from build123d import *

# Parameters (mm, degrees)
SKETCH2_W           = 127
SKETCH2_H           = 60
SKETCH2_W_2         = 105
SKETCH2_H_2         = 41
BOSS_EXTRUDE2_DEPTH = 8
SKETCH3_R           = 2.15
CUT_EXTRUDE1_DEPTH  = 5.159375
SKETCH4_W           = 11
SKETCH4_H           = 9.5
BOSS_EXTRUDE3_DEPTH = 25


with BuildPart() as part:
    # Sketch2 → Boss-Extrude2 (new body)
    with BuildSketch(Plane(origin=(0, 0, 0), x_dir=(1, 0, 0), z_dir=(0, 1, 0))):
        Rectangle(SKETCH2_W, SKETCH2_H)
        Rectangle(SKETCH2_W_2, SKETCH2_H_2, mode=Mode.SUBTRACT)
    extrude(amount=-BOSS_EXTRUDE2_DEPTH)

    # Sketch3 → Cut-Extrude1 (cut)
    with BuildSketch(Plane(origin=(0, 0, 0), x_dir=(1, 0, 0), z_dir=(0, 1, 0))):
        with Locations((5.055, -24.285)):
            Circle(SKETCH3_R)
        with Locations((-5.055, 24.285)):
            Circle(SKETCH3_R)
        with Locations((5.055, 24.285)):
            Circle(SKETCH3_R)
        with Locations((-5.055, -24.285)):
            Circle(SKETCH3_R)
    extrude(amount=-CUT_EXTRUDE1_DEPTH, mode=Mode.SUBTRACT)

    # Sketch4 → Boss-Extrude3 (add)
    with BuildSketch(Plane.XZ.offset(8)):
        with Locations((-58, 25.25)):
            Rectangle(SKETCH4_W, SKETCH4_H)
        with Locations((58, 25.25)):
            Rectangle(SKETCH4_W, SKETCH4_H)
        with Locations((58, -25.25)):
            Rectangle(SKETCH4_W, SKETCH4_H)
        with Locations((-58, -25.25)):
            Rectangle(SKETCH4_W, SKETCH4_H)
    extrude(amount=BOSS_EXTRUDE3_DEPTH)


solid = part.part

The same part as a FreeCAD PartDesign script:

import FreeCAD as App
import Part
import Sketcher
from FreeCAD import Vector


def add_polygon(sketch, points):
    """Adds a closed chain of lines whose ends are joined by coincident constraints."""
    first, n = sketch.GeometryCount, len(points)
    for a, b in zip(points, points[1:] + points[:1]):
        sketch.addGeometry(Part.LineSegment(App.Vector(*a, 0), App.Vector(*b, 0)), False)
    for i in range(n):
        sketch.addConstraint(Sketcher.Constraint("Coincident", first + i, 2, first + (i + 1) % n, 1))

doc = App.newDocument("Part")
params = doc.addObject("Spreadsheet::Sheet", "Params")
for row, (alias, value) in enumerate([
    ("sketch1_width", "127 mm"),
    ("sketch1_width2", "105 mm"),
    ("sketch1_height", "60 mm"),
    ("sketch1_height2", "41 mm"),
    ("pad1_length", "8 mm"),
    ("sketch2_diameter", "4.3 mm"),
    ("pocket1_length", "5.159375 mm"),
    ("sketch3_width", "11 mm"),
    ("sketch3_height", "9.5 mm"),
    ("pad2_length", "25 mm"),
], start=1):
    params.set(f"A{row}", alias)
    params.set(f"B{row}", "=" + value)
    params.setAlias(f"B{row}", alias)

body = doc.addObject("PartDesign::Body", "Body")

# Sketch on XZ plane
sketch1 = body.newObject("Sketcher::SketchObject", "Sketch")
sketch1.AttachmentSupport = (doc.getObject("XZ_Plane"), [""])
sketch1.MapMode = "FlatFace"
add_polygon(sketch1, [(-64, -30), (-64, 30), (64, 30), (64, -30)])  # lines 0-3
add_polygon(sketch1, [(52, 20), (-52, 20), (-52, -20), (52, -20)])  # lines 4-7
sketch1.addConstraint(Sketcher.Constraint("Vertical", 0))
sketch1.addConstraint(Sketcher.Constraint("Horizontal", 1))
sketch1.addConstraint(Sketcher.Constraint("Vertical", 2))
sketch1.addConstraint(Sketcher.Constraint("Horizontal", 3))
sketch1.addConstraint(Sketcher.Constraint("Horizontal", 4))
sketch1.addConstraint(Sketcher.Constraint("Vertical", 5))
sketch1.addConstraint(Sketcher.Constraint("Horizontal", 6))
sketch1.addConstraint(Sketcher.Constraint("Vertical", 7))
sketch1.addConstraint(Sketcher.Constraint("Symmetric", 0, 2, 2, 2, -1, 1))
sketch1.addConstraint(Sketcher.Constraint("Symmetric", 4, 2, 6, 2, -1, 1))
sketch1.addConstraint(Sketcher.Constraint("DistanceX", 1, 1, 1, 2, 127.0))
sketch1.addConstraint(Sketcher.Constraint("DistanceX", 4, 2, 4, 1, 105.0))
sketch1.addConstraint(Sketcher.Constraint("DistanceY", 0, 1, 0, 2, 60.0))
sketch1.addConstraint(Sketcher.Constraint("DistanceY", 5, 2, 5, 1, 41.0))
sketch1.setExpression("Constraints[18]", "Params.sketch1_width")
sketch1.setExpression("Constraints[19]", "Params.sketch1_width2")
sketch1.setExpression("Constraints[20]", "Params.sketch1_height")
sketch1.setExpression("Constraints[21]", "Params.sketch1_height2")
pad1 = body.newObject("PartDesign::Pad", "Pad")
pad1.Profile = sketch1
pad1.setExpression("Length", "Params.pad1_length")

# Sketch on XZ plane
sketch2 = body.newObject("Sketcher::SketchObject", "Sketch001")
sketch2.AttachmentSupport = (doc.getObject("XZ_Plane"), [""])
sketch2.MapMode = "FlatFace"
sketch2.addGeometry(Part.Circle(Vector(5.1, 24.3, 0), Vector(0, 0, 1), 2.1), False)
sketch2.addGeometry(Part.Circle(Vector(-5.1, -24.3, 0), Vector(0, 0, 1), 2.1), False)
sketch2.addGeometry(Part.Circle(Vector(5.1, -24.3, 0), Vector(0, 0, 1), 2.1), False)
sketch2.addGeometry(Part.Circle(Vector(-5.1, 24.3, 0), Vector(0, 0, 1), 2.1), False)
sketch2.addConstraint(Sketcher.Constraint("Equal", 0, 1))
sketch2.addConstraint(Sketcher.Constraint("Equal", 1, 2))
sketch2.addConstraint(Sketcher.Constraint("Equal", 2, 3))
sketch2.addConstraint(Sketcher.Constraint("Symmetric", 0, 3, 1, 3, -1, 1))
sketch2.addConstraint(Sketcher.Constraint("Symmetric", 2, 3, 3, 3, -1, 1))
sketch2.addConstraint(Sketcher.Constraint("Symmetric", 1, 3, 2, 3, -2))
sketch2.addConstraint(Sketcher.Constraint("Diameter", 0, 4.3))
sketch2.addConstraint(Sketcher.Constraint("DistanceX", 1, 3, 0, 3, 10.11))
sketch2.addConstraint(Sketcher.Constraint("DistanceY", 1, 3, 0, 3, 48.57))
sketch2.setExpression("Constraints[6]", "Params.sketch2_diameter")
pocket1 = body.newObject("PartDesign::Pocket", "Pocket")
pocket1.Profile = sketch2
pocket1.setExpression("Length", "Params.pocket1_length")
pocket1.Reversed = True

# Sketch on XZ plane
sketch3 = body.newObject("Sketcher::SketchObject", "Sketch002")
sketch3.AttachmentSupport = (doc.getObject("XZ_Plane"), [""])
sketch3.MapMode = "FlatFace"
sketch3.AttachmentOffset = App.Placement(Vector(0, 0, 8), App.Rotation())
add_polygon(sketch3, [(-64, 30), (-64, 20), (-52, 20), (-52, 30)])  # lines 0-3
add_polygon(sketch3, [(52, 30), (52, 20), (64, 20), (64, 30)])  # lines 4-7
add_polygon(sketch3, [(52, -20), (52, -30), (64, -30), (64, -20)])  # lines 8-11
add_polygon(sketch3, [(-64, -20), (-64, -30), (-52, -30), (-52, -20)])  # lines 12-15
sketch3.addConstraint(Sketcher.Constraint("Vertical", 0))
sketch3.addConstraint(Sketcher.Constraint("Horizontal", 1))
sketch3.addConstraint(Sketcher.Constraint("Vertical", 2))
sketch3.addConstraint(Sketcher.Constraint("Horizontal", 3))
sketch3.addConstraint(Sketcher.Constraint("Vertical", 4))
sketch3.addConstraint(Sketcher.Constraint("Horizontal", 5))
sketch3.addConstraint(Sketcher.Constraint("Vertical", 6))
sketch3.addConstraint(Sketcher.Constraint("Horizontal", 7))
sketch3.addConstraint(Sketcher.Constraint("Vertical", 8))
sketch3.addConstraint(Sketcher.Constraint("Horizontal", 9))
sketch3.addConstraint(Sketcher.Constraint("Vertical", 10))
sketch3.addConstraint(Sketcher.Constraint("Horizontal", 11))
sketch3.addConstraint(Sketcher.Constraint("Vertical", 12))
sketch3.addConstraint(Sketcher.Constraint("Horizontal", 13))
sketch3.addConstraint(Sketcher.Constraint("Vertical", 14))
sketch3.addConstraint(Sketcher.Constraint("Horizontal", 15))
sketch3.addConstraint(Sketcher.Constraint("Symmetric", 2, 2, 8, 2, -1, 1))
sketch3.addConstraint(Sketcher.Constraint("Symmetric", 0, 2, 10, 2, -1, 1))
sketch3.addConstraint(Sketcher.Constraint("Symmetric", 6, 2, 12, 2, -1, 1))
sketch3.addConstraint(Sketcher.Constraint("Symmetric", 4, 2, 14, 2, -1, 1))
sketch3.addConstraint(Sketcher.Constraint("Symmetric", 1, 2, 4, 2, -2))
sketch3.addConstraint(Sketcher.Constraint("Symmetric", 3, 2, 6, 2, -2))
sketch3.addConstraint(Sketcher.Constraint("DistanceX", 1, 1, 1, 2, 11.0))
sketch3.addConstraint(Sketcher.Constraint("DistanceY", 0, 2, 0, 1, 9.5))
sketch3.addConstraint(Sketcher.Constraint("DistanceY", -1, 1, 2, 2, 30.0))
sketch3.addConstraint(Sketcher.Constraint("DistanceX", 1, 2, 4, 2, 105.0))
sketch3.setExpression("Constraints[38]", "Params.sketch3_width")
sketch3.setExpression("Constraints[39]", "Params.sketch3_height")
pad2 = body.newObject("PartDesign::Pad", "Pad001")
pad2.Profile = sketch3
pad2.setExpression("Length", "Params.pad2_length")

doc.recompute()
